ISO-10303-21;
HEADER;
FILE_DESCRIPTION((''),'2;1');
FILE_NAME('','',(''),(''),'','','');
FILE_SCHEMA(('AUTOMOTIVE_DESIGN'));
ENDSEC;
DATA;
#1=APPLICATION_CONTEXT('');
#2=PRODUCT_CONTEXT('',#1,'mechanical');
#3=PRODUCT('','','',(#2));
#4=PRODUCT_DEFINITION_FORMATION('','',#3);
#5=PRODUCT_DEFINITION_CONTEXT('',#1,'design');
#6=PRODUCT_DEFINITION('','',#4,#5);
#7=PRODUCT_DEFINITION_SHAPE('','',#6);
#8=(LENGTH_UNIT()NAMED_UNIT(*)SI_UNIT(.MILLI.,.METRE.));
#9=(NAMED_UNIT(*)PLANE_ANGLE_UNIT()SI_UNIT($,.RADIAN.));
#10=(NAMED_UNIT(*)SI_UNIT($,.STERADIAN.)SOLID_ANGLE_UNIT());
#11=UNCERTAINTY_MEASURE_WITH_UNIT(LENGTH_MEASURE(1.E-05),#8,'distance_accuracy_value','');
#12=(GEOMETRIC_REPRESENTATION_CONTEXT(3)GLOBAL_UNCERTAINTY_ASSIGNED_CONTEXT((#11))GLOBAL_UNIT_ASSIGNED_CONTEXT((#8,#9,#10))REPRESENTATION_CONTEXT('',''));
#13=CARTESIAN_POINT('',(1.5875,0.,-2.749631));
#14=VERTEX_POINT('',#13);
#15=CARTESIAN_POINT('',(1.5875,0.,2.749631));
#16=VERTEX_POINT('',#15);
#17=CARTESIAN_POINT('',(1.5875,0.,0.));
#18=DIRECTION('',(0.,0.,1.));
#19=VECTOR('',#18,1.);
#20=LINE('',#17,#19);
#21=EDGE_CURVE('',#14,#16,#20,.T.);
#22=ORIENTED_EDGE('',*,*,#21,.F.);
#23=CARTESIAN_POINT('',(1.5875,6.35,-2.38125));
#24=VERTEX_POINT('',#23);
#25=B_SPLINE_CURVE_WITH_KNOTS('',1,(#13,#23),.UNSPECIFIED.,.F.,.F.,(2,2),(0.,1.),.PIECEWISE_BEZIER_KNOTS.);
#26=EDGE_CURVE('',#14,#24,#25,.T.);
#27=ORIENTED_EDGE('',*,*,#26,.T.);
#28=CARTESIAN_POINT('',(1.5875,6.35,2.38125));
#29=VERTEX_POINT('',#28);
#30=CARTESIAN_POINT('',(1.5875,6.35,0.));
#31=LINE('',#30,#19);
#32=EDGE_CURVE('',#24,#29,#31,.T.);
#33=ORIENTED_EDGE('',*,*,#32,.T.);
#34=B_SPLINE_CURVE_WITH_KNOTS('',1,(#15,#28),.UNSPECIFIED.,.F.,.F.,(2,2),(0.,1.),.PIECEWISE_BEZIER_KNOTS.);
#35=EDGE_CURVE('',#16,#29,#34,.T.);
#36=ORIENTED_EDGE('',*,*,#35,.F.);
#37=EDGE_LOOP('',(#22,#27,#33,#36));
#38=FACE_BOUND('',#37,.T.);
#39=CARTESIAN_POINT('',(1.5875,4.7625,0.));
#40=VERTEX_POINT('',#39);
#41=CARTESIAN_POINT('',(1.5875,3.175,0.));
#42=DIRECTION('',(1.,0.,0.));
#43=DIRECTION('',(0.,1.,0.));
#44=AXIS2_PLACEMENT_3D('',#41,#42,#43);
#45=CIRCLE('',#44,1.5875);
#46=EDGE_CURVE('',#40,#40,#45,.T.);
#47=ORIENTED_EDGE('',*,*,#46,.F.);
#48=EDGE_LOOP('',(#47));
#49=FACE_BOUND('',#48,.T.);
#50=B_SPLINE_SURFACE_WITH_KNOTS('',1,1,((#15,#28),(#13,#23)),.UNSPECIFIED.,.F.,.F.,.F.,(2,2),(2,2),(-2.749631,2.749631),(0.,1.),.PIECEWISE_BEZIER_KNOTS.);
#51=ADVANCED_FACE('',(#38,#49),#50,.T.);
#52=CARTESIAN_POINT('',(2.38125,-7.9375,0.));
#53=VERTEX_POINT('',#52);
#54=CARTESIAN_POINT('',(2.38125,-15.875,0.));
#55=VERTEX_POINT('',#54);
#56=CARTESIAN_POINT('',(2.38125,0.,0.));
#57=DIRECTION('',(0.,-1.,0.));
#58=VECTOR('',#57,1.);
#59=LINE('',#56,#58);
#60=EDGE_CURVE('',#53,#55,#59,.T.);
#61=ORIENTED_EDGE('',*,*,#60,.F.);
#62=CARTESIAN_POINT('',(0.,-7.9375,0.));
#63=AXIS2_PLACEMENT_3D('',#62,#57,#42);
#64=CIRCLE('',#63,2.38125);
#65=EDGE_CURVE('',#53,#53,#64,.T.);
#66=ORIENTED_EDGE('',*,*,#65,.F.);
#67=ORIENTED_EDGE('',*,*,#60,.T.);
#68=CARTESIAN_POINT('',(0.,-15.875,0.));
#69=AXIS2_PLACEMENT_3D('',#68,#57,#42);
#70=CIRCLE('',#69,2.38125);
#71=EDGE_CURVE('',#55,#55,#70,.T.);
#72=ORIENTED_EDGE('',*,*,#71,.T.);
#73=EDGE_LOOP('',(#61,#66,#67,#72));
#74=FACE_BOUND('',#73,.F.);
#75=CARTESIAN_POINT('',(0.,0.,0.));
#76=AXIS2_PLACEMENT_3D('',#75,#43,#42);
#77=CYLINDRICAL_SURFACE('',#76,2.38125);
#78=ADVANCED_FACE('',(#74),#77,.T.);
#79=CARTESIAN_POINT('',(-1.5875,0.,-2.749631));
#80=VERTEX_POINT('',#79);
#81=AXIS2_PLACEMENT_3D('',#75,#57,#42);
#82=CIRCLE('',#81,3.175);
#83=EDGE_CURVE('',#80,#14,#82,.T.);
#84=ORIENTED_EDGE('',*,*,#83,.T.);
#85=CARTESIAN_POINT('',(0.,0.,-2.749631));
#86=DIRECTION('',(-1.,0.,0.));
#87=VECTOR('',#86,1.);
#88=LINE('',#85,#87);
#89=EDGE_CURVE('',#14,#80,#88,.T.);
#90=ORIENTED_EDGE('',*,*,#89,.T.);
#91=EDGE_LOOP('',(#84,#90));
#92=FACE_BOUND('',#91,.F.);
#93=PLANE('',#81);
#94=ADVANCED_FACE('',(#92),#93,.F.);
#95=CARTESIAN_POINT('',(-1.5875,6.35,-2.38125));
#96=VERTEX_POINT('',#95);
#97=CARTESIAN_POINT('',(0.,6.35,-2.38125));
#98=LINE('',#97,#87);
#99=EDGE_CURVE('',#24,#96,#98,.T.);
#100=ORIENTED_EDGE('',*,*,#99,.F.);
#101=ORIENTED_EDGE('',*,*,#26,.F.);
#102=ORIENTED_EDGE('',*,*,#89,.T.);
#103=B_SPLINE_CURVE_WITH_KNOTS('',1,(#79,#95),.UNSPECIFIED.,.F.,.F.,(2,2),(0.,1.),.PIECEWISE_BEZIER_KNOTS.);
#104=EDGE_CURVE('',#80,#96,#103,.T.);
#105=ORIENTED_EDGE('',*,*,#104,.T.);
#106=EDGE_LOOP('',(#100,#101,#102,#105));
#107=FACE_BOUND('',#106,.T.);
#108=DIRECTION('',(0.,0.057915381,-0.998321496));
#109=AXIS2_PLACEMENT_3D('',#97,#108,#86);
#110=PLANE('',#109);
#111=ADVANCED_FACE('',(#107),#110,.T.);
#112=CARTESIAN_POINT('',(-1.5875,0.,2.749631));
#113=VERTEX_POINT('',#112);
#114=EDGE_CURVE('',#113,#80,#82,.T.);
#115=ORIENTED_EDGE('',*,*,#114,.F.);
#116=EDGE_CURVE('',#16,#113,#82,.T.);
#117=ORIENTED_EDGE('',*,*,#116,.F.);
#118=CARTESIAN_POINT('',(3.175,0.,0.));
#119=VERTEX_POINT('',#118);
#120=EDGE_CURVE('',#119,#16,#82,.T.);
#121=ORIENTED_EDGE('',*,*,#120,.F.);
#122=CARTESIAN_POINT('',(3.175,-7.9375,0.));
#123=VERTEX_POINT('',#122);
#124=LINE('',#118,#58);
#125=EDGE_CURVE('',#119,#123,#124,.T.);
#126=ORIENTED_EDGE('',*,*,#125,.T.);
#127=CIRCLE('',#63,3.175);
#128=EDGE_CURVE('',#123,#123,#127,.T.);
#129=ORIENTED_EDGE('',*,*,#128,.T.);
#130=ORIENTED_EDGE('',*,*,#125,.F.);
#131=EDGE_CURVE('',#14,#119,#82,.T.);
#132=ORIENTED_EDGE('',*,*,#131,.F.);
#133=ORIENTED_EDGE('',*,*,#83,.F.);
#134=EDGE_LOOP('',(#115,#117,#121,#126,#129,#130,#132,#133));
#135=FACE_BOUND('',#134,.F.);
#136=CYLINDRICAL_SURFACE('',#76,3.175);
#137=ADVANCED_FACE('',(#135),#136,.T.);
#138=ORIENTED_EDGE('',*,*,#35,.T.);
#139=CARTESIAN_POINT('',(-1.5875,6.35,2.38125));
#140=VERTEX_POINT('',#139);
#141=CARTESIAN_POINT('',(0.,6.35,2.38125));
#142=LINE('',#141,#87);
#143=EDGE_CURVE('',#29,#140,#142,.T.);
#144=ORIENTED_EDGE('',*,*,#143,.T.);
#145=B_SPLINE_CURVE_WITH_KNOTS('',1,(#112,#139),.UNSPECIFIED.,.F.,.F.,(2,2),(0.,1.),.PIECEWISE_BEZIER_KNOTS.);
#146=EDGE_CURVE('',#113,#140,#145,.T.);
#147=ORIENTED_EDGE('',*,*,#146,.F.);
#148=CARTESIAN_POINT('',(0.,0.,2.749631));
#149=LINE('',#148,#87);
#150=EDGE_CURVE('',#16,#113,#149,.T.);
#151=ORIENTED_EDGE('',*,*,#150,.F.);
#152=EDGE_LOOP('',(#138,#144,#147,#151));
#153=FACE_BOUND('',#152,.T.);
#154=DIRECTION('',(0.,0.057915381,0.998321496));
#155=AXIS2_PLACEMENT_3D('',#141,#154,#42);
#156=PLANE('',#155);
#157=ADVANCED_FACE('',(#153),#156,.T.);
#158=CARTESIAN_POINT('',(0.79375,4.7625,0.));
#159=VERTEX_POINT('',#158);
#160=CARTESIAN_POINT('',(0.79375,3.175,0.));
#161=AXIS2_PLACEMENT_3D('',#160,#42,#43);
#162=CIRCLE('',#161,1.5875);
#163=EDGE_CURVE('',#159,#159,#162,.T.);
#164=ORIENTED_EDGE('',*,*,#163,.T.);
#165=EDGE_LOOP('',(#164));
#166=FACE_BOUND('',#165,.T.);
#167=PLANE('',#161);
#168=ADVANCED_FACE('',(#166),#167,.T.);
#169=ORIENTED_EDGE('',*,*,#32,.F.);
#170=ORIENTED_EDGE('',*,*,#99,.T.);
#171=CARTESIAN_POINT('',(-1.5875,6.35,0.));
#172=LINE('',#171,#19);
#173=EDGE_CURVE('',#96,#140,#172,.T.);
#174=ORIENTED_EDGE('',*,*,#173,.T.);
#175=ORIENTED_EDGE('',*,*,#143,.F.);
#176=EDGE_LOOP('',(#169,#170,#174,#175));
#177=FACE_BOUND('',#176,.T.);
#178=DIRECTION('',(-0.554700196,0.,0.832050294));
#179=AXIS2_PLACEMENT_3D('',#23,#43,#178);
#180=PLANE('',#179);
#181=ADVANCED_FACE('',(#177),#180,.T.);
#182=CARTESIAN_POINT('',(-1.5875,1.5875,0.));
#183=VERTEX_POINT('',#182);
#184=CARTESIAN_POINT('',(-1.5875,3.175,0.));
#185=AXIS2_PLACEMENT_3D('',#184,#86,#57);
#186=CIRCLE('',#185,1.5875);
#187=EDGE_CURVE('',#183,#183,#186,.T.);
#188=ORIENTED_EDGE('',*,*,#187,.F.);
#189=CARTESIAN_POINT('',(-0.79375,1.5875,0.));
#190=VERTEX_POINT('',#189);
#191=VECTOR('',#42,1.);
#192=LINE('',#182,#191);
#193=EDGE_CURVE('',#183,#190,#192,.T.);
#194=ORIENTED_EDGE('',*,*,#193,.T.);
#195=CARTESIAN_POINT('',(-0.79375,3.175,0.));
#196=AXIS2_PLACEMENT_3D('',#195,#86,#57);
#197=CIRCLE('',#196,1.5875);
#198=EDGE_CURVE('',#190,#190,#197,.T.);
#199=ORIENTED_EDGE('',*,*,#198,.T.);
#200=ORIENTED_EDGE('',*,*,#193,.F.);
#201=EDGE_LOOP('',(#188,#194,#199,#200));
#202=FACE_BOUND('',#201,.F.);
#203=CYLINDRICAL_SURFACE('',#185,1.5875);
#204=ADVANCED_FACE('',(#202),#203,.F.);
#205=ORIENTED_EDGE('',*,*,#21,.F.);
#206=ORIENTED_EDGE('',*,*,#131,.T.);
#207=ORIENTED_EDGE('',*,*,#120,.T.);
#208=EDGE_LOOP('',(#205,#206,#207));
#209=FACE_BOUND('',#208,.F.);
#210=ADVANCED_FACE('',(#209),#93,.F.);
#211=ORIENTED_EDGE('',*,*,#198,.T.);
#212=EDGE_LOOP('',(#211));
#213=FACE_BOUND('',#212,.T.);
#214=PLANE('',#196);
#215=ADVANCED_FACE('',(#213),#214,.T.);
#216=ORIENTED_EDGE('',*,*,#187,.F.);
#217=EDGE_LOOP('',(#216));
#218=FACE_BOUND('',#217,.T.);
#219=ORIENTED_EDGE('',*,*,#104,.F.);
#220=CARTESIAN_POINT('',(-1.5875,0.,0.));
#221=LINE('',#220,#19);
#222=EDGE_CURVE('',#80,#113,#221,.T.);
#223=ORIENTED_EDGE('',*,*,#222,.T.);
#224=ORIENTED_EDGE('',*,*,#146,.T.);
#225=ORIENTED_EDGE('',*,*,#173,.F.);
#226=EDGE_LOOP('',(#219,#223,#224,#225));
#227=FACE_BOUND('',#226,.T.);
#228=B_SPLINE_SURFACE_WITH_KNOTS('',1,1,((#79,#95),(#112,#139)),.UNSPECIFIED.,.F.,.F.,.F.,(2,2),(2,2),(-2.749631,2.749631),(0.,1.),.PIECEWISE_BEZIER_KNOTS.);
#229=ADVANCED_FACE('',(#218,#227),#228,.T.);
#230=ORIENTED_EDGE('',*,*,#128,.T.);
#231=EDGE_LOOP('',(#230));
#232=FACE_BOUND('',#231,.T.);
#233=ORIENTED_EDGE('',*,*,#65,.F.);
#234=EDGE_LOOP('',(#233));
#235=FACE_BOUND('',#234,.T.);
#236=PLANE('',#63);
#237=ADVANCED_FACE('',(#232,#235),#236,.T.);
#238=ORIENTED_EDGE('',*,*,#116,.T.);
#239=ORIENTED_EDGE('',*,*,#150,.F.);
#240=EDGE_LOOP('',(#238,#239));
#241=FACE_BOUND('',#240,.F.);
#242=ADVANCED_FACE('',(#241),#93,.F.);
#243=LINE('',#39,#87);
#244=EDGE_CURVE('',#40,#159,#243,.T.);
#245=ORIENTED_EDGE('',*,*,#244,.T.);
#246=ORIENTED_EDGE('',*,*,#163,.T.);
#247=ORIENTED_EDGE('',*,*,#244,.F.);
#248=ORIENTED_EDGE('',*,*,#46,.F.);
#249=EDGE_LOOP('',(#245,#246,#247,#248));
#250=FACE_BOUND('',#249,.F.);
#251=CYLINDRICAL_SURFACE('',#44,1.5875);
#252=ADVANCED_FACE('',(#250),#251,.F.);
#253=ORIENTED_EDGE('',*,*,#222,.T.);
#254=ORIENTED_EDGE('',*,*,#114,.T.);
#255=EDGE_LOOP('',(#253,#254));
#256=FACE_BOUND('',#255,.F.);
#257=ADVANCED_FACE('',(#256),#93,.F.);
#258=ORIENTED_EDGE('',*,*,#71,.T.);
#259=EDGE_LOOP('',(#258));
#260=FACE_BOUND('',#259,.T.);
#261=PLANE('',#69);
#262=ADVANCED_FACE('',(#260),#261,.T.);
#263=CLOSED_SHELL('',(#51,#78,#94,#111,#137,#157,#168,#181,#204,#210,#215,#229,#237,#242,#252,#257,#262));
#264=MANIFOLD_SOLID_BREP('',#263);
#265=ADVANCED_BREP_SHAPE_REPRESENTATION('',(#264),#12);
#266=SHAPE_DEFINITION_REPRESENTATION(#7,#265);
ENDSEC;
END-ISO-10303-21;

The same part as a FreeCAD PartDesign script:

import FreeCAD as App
import Part
import Sketcher
Q = App.Units.Quantity

doc = App.newDocument("Part")
params = doc.addObject("Spreadsheet::Sheet", "Params")
for row, (alias, value) in enumerate([
    ("sketch1_diameter", "0.25 in"),
    ("sketch1_diameter2", "0.1875 in"),
    ("pad1_length", "0.3125 in"),
    ("sketch2_diameter", "0.1875 in"),
    ("pad2_length", "0.625 in"),
    ("sketch3_width", "0.125 in"),
    ("sketch4_width", "0.125 in"),
    ("sketch4_height", "0.1875 in"),
    ("sketch5_diameter", "0.125 in"),
    ("pocket1_length", "0.03125 in"),
    ("sketch6_diameter", "0.125 in"),
    ("pocket2_length", "0.03125 in"),
], start=1):
    params.set(f"A{row}", alias)
    params.set(f"B{row}", "=" + value)
    params.setAlias(f"B{row}", alias)

body = doc.addObject("PartDesign::Body", "Body")

# Sketch on XZ plane
sketch1 = body.newObject("Sketcher::SketchObject", "Sketch")
sketch1.AttachmentSupport = (doc.getObject("XZ_Plane"), [""])
sketch1.MapMode = "FlatFace"
sketch1.addGeometry([
    Part.Circle(App.Vector(0, 0, 0), App.Vector(0, 0, 1), 3.2),
    Part.Circle(App.Vector(0, 0, 0), App.Vector(0, 0, 1), 2.4),
], False)
sketch1.addConstraint([
    Sketcher.Constraint("Coincident", 0, 3, -1, 1),
    Sketcher.Constraint("Coincident", 1, 3, -1, 1),
    Sketcher.Constraint("Diameter", 0, Q("0.25 in")),
    Sketcher.Constraint("Diameter", 1, Q("0.1875 in")),
])
sketch1.setExpression("Constraints[2]", "Params.sketch1_diameter")
sketch1.setExpression("Constraints[3]", "Params.sketch1_diameter2")
pad1 = body.newObject("PartDesign::Pad", "Pad")
pad1.Profile = sketch1
pad1.setExpression("Length", "Params.pad1_length")

# Sketch on XZ plane
sketch2 = body.newObject("Sketcher::SketchObject", "Sketch001")
sketch2.AttachmentSupport = (doc.getObject("XZ_Plane"), [""])
sketch2.MapMode = "FlatFace"
sketch2.addGeometry(Part.Circle(App.Vector(0, 0, 0), App.Vector(0, 0, 1), 2.4), False)
sketch2.addConstraint([
    Sketcher.Constraint("Coincident", 0, 3, -1, 1),
    Sketcher.Constraint("Diameter", 0, Q("0.1875 in")),
])
sketch2.setExpression("Constraints[1]", "Params.sketch2_diameter")
pad2 = body.newObject("PartDesign::Pad", "Pad001")
pad2.Profile = sketch2
pad2.setExpression("Length", "Params.pad2_length")

# Sketch on XZ plane
sketch3 = body.newObject("Sketcher::SketchObject", "Sketch002")
sketch3.AttachmentSupport = (doc.getObject("XZ_Plane"), [""])
sketch3.MapMode = "FlatFace"
sketch3.addGeometry([
    Part.LineSegment(App.Vector(1.6, 2.7, 0), App.Vector(1.6, -2.7, 0)),
    Part.LineSegment(App.Vector(1.6, -2.7, 0), App.Vector(-1.6, -2.7, 0)),
    Part.LineSegment(App.Vector(-1.6, -2.7, 0), App.Vector(-1.6, 2.7, 0)),
    Part.LineSegment(App.Vector(-1.6, 2.7, 0), App.Vector(1.6, 2.7, 0)),
], False)
sketch3.addConstraint([
    Sketcher.Constraint("Coincident", 0, 2, 1, 1),
    Sketcher.Constraint("Coincident", 1, 2, 2, 1),
    Sketcher.Constraint("Coincident", 2, 2, 3, 1),
    Sketcher.Constraint("Coincident", 3, 2, 0, 1),
    Sketcher.Constraint("Vertical", 0),
    Sketcher.Constraint("Horizontal", 1),
    Sketcher.Constraint("Vertical", 2),
    Sketcher.Constraint("Horizontal", 3),
    Sketcher.Constraint("Symmetric", 0, 2, 2, 2, -1, 1),
    Sketcher.Constraint("DistanceX", 1, 2, 1, 1, Q("0.125 in")),
    Sketcher.Constraint("DistanceY", 0, 2, 0, 1, 5.499262),
])
sketch3.setExpression("Constraints[9]", "Params.sketch3_width")

# Sketch on XZ plane
sketch4 = body.newObject("Sketcher::SketchObject", "Sketch003")
sketch4.AttachmentSupport = (doc.getObject("XZ_Plane"), [""])
sketch4.MapMode = "FlatFace"
sketch4.AttachmentOffset = App.Placement(App.Vector(0, 0, -0.25 * 25.4), App.Rotation())
sketch4.addGeometry([
    Part.LineSegment(App.Vector(1.6, 2.4, 0), App.Vector(1.6, -2.4, 0)),
    Part.LineSegment(App.Vector(1.6, -2.4, 0), App.Vector(-1.6, -2.4, 0)),
    Part.LineSegment(App.Vector(-1.6, -2.4, 0), App.Vector(-1.6, 2.4, 0)),
    Part.LineSegment(App.Vector(-1.6, 2.4, 0), App.Vector(1.6, 2.4, 0)),
], False)
sketch4.addConstraint([
    Sketcher.Constraint("Coincident", 0, 2, 1, 1),
    Sketcher.Constraint("Coincident", 1, 2, 2, 1),
    Sketcher.Constraint("Coincident", 2, 2, 3, 1),
    Sketcher.Constraint("Coincident", 3, 2, 0, 1),
    Sketcher.Constraint("Vertical", 0),
    Sketcher.Constraint("Horizontal", 1),
    Sketcher.Constraint("Vertical", 2),
    Sketcher.Constraint("Horizontal", 3),
    Sketcher.Constraint("Symmetric", 0, 2, 2, 2, -1, 1),
    Sketcher.Constraint("DistanceX", 1, 2, 1, 1, Q("0.125 in")),
    Sketcher.Constraint("DistanceY", 0, 2, 0, 1, Q("0.1875 in")),
])
sketch4.setExpression("Constraints[9]", "Params.sketch4_width")
sketch4.setExpression("Constraints[10]", "Params.sketch4_height")

additiveloft = body.newObject("PartDesign::AdditiveLoft", "AdditiveLoft")
additiveloft.Profile = sketch3
additiveloft.Sections = [sketch4]

# Sketch on YZ plane
sketch5 = body.newObject("Sketcher::SketchObject", "Sketch004")
sketch5.AttachmentSupport = (doc.getObject("YZ_Plane"), [""])
sketch5.MapMode = "FlatFace"
sketch5.AttachmentOffset = App.Placement(App.Vector(0, 0, 0.0625 * 25.4), App.Rotation())
sketch5.addGeometry(Part.Circle(App.Vector(3.2, 0, 0), App.Vector(0, 0, 1), 1.6), False)
sketch5.addConstraint([
    Sketcher.Constraint("PointOnObject", 0, 3, -1),
    Sketcher.Constraint("Diameter", 0, Q("0.125 in")),
    Sketcher.Constraint("DistanceX", -1, 1, 0, 3, Q("0.125 in")),
])
sketch5.setExpression("Constraints[1]", "Params.sketch5_diameter")
pocket1 = body.newObject("PartDesign::Pocket", "Pocket")
pocket1.Profile = sketch5
pocket1.setExpression("Length", "Params.pocket1_length")

# Sketch on YZ plane
sketch6 = body.newObject("Sketcher::SketchObject", "Sketch005")
sketch6.AttachmentSupport = (doc.getObject("YZ_Plane"), [""])
sketch6.MapMode = "FlatFace"
sketch6.AttachmentOffset = App.Placement(App.Vector(0, 0, -0.0625 * 25.4), App.Rotation())
sketch6.addGeometry(Part.Circle(App.Vector(3.2, 0, 0), App.Vector(0, 0, 1), 1.6), False)
sketch6.addConstraint([
    Sketcher.Constraint("PointOnObject", 0, 3, -1),
    Sketcher.Constraint("Diameter", 0, Q("0.125 in")),
    Sketcher.Constraint("DistanceX", -1, 1, 0, 3, Q("0.125 in")),
])
sketch6.setExpression("Constraints[1]", "Params.sketch6_diameter")
pocket2 = body.newObject("PartDesign::Pocket", "Pocket001")
pocket2.Profile = sketch6
pocket2.setExpression("Length", "Params.pocket2_length")
pocket2.Reversed = True

doc.recompute()
